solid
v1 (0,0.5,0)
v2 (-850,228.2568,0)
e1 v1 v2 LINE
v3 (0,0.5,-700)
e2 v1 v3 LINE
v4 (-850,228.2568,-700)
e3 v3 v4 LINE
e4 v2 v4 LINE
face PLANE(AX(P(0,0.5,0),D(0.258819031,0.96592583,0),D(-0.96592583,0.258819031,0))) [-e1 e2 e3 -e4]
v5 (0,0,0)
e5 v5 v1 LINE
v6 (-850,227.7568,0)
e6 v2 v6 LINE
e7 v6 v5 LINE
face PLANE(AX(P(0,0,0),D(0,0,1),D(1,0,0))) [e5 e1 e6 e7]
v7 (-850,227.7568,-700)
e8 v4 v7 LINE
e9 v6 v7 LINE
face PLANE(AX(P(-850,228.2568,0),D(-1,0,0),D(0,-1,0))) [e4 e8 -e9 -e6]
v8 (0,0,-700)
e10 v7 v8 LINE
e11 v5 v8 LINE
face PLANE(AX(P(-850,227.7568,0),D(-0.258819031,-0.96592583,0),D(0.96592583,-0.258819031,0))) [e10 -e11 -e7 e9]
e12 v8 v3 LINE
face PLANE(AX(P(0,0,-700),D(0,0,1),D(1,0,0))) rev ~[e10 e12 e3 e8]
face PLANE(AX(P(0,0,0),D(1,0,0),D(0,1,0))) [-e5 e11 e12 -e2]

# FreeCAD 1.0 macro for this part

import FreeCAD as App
import Part
import Sketcher
from FreeCAD import Vector
Q = App.Units.Quantity


def add_polygon(sketch, points):
    """Adds a closed chain of lines whose ends are joined by coincident constraints."""
    first, n = sketch.GeometryCount, len(points)
    for a, b in zip(points, points[1:] + points[:1]):
        sketch.addGeometry(Part.LineSegment(App.Vector(*a, 0), App.Vector(*b, 0)), False)
    for i in range(n):
        sketch.addConstraint(Sketcher.Constraint("Coincident", first + i, 2, first + (i + 1) % n, 1))

doc = App.newDocument("Part")
body = doc.addObject("PartDesign::Body", "Body")

sketch1 = doc.addObject("Sketcher::SketchObject", "Sketch")
body.addObject(sketch1)
sketch1.AttachmentSupport = (doc.XY_Plane, [""])
sketch1.MapMode = "FlatFace"
add_polygon(sketch1, [(-850, 227.8), (0, 0), (0, 0.5), (-850, 228.3)])
sketch1.addConstraint(Sketcher.Constraint("Vertical", 1))
sketch1.addConstraint(Sketcher.Constraint("Vertical", 3))
sketch1.addConstraint(Sketcher.Constraint("Coincident", 0, 2, -1, 1))
sketch1.addConstraint(Sketcher.Constraint("Parallel", 0, 2))
sketch1.addConstraint(Sketcher.Constraint("Angle", 0, Q("-15 deg")))
sketch1.addConstraint(Sketcher.Constraint("DistanceY", 1, 1, 1, 2, Q("0.5 mm")))
sketch1.addConstraint(Sketcher.Constraint("DistanceX", 2, 2, -1, 1, Q("850 mm")))
pad1 = doc.addObject("PartDesign::Pad", "Pad")
body.addObject(pad1)
pad1.Profile = sketch1
pad1.Length = 700
pad1.Reversed = True

doc.recompute()
